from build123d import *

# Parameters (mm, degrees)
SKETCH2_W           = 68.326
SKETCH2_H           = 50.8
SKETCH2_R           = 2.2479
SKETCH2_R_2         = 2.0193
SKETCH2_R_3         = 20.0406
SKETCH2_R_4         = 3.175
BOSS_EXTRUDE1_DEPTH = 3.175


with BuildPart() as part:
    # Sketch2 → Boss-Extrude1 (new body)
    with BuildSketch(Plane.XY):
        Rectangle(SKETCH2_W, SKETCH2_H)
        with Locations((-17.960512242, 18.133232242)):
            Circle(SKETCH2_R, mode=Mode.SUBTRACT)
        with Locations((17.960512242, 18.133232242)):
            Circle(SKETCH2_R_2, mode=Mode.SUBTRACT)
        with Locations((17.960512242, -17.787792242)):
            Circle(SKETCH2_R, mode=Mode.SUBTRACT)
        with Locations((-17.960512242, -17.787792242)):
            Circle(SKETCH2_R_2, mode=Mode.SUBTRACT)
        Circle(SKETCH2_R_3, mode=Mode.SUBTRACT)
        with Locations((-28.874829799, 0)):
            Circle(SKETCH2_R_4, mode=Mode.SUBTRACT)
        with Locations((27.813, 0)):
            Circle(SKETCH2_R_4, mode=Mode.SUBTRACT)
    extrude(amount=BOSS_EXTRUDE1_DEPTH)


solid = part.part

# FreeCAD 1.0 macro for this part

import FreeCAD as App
import Part
import Sketcher
from FreeCAD import Vector
Q = App.Units.Quantity

doc = App.newDocument("Part")
body = doc.addObject("PartDesign::Body", "Body")

sketch1 = body.newObject("Sketcher::SketchObject", "Sketch")
sketch1.AttachmentSupport = (doc.getObject("XY_Plane"), [""])
sketch1.MapMode = "FlatFace"
sketch1.addGeometry([
    Part.LineSegment(Vector(-34.2, 25.4, 0), Vector(-34.2, -25.4, 0)),
    Part.LineSegment(Vector(-34.2, -25.4, 0), Vector(34.2, -25.4, 0)),
    Part.LineSegment(Vector(34.2, -25.4, 0), Vector(34.2, 25.4, 0)),
    Part.LineSegment(Vector(34.2, 25.4, 0), Vector(-34.2, 25.4, 0)),
    Part.Circle(Vector(-18, -17.8, 0), Vector(0, 0, 1), 2),
    Part.Circle(Vector(-28.9, 0, 0), Vector(0, 0, 1), 3.2),
    Part.Circle(Vector(18, -17.8, 0), Vector(0, 0, 1), 2.2),
    Part.Circle(Vector(0, 0, 0), Vector(0, 0, 1), 20),
    Part.Circle(Vector(27.8, 0, 0), Vector(0, 0, 1), 3.2),
    Part.Circle(Vector(-18, 18.1, 0), Vector(0, 0, 1), 2.2),
    Part.Circle(Vector(18, 18.1, 0), Vector(0, 0, 1), 2),
], False)
sketch1.addConstraint([
    Sketcher.Constraint("Coincident", 0, 2, 1, 1),
    Sketcher.Constraint("Coincident", 1, 2, 2, 1),
    Sketcher.Constraint("Coincident", 2, 2, 3, 1),
    Sketcher.Constraint("Coincident", 3, 2, 0, 1),
    Sketcher.Constraint("Vertical", 0),
    Sketcher.Constraint("Horizontal", 1),
    Sketcher.Constraint("Vertical", 2),
    Sketcher.Constraint("Horizontal", 3),
    Sketcher.Constraint("Coincident", 7, 3, -1, 1),
    Sketcher.Constraint("Equal", 5, 8),
    Sketcher.Constraint("Equal", 6, 9),
    Sketcher.Constraint("Equal", 4, 10),
    Sketcher.Constraint("Symmetric", 0, 2, 2, 2, -1, 1),
    Sketcher.Constraint("Symmetric", 4, 3, 6, 3, -2),
    Sketcher.Constraint("Symmetric", 9, 3, 10, 3, -2),
    Sketcher.Constraint("PointOnObject", 5, 3, -1),
    Sketcher.Constraint("PointOnObject", 8, 3, -1),
    Sketcher.Constraint("Vertical", 4, 3, 9, 3),
    Sketcher.Constraint("Diameter", 5, Q("0.25 in")),
    Sketcher.Constraint("DistanceY", 0, 2, 0, 1, Q("2 in")),
    Sketcher.Constraint("Diameter", 4, Q("0.159 in")),
    Sketcher.Constraint("Diameter", 6, Q("0.177 in")),
    Sketcher.Constraint("Diameter", 7, Q("1.578 in")),
    Sketcher.Constraint("DistanceX", 1, 1, 1, 2, Q("2.69 in")),
    Sketcher.Constraint("DistanceX", 8, 3, 1, 2, Q("0.25 in")),
    Sketcher.Constraint("DistanceX", 5, 3, -1, 1, Q("28.87483 mm")),
    Sketcher.Constraint("DistanceX", 4, 3, -1, 1, Q("17.960512 mm")),
    Sketcher.Constraint("DistanceY", 4, 3, -1, 1, Q("17.787792 mm")),
    Sketcher.Constraint("DistanceY", -1, 1, 9, 3, Q("18.133232 mm")),
])
pad1 = body.newObject("PartDesign::Pad", "Pad")
pad1.Profile = sketch1
pad1.Length = Q("0.125 in")

doc.recompute()
